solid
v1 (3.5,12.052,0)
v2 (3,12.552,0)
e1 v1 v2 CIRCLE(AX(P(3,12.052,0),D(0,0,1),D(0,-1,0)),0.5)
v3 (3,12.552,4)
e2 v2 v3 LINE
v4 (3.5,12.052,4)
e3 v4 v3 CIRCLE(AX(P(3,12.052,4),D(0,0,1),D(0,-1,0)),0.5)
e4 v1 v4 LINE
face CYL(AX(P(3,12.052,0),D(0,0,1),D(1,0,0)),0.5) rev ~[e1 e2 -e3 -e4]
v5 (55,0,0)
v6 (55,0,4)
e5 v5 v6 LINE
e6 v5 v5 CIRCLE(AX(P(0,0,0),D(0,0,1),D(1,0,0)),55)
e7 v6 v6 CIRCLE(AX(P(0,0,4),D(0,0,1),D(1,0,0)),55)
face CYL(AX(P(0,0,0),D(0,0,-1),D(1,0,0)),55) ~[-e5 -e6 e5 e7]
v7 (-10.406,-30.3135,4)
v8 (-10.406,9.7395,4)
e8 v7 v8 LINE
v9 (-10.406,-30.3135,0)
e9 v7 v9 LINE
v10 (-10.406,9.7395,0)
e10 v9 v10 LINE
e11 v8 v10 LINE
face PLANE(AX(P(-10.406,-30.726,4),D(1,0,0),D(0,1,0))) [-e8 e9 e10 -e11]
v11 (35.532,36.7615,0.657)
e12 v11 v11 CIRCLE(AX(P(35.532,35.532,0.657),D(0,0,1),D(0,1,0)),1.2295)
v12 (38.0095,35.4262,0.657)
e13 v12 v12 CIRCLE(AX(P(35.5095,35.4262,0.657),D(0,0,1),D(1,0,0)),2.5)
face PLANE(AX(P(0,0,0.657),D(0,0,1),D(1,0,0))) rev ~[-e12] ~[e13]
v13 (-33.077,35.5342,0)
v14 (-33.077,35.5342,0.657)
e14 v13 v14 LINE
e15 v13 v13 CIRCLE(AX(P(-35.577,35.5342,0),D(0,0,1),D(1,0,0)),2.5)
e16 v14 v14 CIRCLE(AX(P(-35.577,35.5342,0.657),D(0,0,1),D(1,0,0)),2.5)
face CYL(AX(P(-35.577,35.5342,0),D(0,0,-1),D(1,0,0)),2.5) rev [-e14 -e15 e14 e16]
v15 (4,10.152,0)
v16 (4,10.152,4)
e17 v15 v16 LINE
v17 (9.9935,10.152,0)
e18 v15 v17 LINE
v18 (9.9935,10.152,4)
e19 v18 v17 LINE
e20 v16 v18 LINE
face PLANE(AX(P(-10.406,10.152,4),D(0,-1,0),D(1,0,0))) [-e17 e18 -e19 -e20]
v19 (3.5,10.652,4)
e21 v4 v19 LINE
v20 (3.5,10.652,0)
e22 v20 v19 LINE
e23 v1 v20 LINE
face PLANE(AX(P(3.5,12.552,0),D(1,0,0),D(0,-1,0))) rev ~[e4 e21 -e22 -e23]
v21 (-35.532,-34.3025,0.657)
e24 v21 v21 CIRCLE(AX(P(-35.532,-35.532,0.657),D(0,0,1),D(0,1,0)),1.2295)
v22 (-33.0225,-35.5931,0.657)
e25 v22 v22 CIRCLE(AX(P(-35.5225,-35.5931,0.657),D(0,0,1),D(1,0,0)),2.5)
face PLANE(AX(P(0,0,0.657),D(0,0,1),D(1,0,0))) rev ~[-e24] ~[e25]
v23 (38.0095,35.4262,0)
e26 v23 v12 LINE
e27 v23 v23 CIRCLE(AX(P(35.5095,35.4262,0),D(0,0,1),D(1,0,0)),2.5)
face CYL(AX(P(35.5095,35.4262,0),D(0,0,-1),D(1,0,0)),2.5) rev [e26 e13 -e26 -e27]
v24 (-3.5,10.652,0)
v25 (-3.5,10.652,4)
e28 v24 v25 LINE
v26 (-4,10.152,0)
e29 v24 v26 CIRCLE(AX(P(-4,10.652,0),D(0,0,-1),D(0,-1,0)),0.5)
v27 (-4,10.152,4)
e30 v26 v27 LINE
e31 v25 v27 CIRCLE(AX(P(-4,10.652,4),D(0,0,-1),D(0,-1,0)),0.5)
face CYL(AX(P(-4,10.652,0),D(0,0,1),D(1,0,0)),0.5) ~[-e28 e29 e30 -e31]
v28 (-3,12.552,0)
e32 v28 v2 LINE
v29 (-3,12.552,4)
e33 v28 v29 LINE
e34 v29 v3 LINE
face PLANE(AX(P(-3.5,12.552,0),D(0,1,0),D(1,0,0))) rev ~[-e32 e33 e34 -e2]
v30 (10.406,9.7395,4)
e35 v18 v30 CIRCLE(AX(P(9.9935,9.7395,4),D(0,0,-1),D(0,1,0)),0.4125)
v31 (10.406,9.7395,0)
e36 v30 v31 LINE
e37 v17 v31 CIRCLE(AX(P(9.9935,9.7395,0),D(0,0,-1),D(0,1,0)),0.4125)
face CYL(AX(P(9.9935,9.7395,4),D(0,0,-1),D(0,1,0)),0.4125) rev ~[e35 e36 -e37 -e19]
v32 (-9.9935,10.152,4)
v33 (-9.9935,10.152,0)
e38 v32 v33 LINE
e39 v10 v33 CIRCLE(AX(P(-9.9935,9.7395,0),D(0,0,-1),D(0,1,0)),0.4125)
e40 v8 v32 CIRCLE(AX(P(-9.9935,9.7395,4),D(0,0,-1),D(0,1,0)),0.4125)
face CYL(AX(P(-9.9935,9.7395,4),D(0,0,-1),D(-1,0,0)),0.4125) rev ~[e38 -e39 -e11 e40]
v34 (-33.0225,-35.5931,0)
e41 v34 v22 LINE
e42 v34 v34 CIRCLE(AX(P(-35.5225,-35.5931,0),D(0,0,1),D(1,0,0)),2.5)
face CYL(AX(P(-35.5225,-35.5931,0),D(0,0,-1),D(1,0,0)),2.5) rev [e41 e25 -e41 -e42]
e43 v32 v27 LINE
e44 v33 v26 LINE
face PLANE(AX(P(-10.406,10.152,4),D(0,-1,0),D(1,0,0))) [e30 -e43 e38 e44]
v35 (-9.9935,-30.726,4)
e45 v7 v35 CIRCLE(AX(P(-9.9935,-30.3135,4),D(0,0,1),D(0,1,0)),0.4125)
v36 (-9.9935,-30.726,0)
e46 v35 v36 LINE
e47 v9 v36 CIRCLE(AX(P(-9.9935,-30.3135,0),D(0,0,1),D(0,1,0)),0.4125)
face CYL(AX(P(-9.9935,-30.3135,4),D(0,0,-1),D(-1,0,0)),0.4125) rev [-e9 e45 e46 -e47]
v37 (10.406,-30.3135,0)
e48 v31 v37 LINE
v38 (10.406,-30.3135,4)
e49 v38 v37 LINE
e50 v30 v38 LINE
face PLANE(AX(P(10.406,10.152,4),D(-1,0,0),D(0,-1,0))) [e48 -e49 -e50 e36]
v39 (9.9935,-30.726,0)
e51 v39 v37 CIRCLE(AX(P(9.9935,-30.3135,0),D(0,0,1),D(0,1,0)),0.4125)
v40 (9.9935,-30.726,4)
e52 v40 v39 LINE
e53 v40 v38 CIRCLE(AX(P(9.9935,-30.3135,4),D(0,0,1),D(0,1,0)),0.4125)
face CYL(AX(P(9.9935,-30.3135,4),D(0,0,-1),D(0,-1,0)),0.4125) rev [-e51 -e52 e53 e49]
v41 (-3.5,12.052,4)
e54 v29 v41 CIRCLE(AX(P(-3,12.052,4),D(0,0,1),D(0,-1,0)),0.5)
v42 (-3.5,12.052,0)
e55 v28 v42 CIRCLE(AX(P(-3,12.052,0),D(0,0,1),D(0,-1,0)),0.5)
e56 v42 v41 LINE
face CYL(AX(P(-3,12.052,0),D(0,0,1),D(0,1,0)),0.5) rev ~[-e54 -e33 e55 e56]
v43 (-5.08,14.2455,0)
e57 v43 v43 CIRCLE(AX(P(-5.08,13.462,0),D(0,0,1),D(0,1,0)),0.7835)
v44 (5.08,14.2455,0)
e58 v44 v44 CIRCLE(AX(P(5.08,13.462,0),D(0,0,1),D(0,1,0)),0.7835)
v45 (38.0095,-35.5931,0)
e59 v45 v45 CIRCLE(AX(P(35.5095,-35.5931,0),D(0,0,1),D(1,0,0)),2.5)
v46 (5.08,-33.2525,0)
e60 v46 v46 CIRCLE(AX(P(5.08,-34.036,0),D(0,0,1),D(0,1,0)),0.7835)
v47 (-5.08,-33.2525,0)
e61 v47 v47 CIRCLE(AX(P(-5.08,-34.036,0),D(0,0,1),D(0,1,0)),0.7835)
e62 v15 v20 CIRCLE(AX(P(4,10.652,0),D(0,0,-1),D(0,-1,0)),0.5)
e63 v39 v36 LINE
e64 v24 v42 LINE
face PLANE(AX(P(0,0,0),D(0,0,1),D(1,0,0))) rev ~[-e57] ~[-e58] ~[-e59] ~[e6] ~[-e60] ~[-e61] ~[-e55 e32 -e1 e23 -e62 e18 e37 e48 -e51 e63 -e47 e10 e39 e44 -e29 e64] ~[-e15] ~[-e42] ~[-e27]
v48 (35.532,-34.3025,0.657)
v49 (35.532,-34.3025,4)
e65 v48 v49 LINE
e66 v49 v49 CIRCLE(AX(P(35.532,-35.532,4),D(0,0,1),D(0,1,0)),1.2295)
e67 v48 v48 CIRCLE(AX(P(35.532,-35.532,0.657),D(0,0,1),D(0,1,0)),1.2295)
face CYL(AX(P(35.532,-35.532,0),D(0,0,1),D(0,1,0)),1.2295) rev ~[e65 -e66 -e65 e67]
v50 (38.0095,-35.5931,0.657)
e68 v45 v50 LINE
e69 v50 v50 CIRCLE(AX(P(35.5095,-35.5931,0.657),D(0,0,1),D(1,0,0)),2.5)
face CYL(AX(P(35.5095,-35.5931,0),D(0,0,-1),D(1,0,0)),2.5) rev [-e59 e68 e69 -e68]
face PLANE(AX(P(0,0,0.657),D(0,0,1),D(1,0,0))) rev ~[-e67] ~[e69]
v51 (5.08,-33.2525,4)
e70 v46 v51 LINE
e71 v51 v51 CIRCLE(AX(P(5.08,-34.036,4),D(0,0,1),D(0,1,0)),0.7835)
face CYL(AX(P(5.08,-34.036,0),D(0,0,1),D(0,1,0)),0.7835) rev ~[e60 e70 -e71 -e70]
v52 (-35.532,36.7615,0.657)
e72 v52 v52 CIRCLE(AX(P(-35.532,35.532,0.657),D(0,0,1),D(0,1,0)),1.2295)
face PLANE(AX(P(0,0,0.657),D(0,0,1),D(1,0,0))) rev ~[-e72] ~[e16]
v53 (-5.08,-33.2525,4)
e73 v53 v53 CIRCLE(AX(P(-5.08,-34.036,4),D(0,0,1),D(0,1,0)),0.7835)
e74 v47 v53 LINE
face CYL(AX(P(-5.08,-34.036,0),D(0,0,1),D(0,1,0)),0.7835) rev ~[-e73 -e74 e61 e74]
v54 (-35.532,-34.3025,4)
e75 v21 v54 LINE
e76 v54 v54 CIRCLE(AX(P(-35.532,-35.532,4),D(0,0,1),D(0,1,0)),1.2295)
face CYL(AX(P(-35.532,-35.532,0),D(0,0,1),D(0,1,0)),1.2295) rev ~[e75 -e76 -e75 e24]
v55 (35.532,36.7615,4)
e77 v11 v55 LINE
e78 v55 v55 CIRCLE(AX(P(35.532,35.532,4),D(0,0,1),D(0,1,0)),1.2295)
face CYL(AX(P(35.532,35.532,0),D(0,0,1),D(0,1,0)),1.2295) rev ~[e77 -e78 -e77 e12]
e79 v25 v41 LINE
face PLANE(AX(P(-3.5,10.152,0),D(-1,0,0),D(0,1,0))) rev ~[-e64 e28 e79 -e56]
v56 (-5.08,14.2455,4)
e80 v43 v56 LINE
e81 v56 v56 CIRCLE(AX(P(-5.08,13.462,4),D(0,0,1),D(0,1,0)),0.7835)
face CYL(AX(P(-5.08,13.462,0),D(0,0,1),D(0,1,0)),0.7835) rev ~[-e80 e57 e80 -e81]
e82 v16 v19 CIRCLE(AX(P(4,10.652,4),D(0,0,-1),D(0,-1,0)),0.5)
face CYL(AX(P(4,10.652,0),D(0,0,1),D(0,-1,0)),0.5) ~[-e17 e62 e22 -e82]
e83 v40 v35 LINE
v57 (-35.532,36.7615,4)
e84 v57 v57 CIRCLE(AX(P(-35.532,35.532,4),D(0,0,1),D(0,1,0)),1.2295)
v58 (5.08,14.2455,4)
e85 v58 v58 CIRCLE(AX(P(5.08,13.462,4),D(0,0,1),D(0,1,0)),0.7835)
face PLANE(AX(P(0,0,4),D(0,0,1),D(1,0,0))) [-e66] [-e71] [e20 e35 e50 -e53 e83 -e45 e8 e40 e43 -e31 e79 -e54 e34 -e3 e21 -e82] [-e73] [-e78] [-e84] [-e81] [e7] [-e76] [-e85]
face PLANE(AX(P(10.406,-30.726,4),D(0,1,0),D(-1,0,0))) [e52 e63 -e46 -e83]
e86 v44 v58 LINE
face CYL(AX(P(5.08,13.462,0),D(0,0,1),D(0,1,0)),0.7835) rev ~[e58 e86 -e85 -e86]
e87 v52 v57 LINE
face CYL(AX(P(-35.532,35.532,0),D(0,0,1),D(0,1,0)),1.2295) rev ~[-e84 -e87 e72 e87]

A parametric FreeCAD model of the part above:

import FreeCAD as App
import Part
import Sketcher


def edges_at(feature, points):
    """Names of the edges that pass closest to the given points."""
    edges = feature.Shape.Edges
    near = lambda p: min(range(len(edges)), key=lambda i: edges[i].distToShape(Part.Vertex(*p))[0])
    return sorted({f"Edge{near(p) + 1}" for p in points})

doc = App.newDocument("Part")
body = doc.addObject("PartDesign::Body", "Body")

# Sketch on XY plane
sketch1 = body.newObject("Sketcher::SketchObject", "Sketch")
sketch1.AttachmentSupport = (doc.getObject("XY_Plane"), [""])
sketch1.MapMode = "FlatFace"
sketch1.addGeometry(Part.Circle(App.Vector(0, 0, 0), App.Vector(0, 0, 1), 55), False)
sketch1.addConstraint([
    Sketcher.Constraint("Coincident", 0, 3, -1, 1),
    Sketcher.Constraint("Diameter", 0, 110.0),
])
pad1 = body.newObject("PartDesign::Pad", "Pad")
pad1.Profile = sketch1
pad1.Length = 4

# Sketch on XY plane
sketch2 = body.newObject("Sketcher::SketchObject", "Sketch001")
sketch2.AttachmentSupport = (doc.getObject("XY_Plane"), [""])
sketch2.MapMode = "FlatFace"
sketch2.AttachmentOffset = App.Placement(App.Vector(0, 0, 4), App.Rotation())
sketch2.addGeometry([
    Part.LineSegment(App.Vector(10.406, 10.152, 0), App.Vector(-10.406, 10.152, 0)),
    Part.LineSegment(App.Vector(-10.406, 10.152, 0), App.Vector(-10.406, -30.726, 0)),
    Part.LineSegment(App.Vector(-10.406, -30.726, 0), App.Vector(10.406, -30.726, 0)),
    Part.LineSegment(App.Vector(10.406, -30.726, 0), App.Vector(10.406, 10.152, 0)),
], False)
sketch2.addConstraint([
    Sketcher.Constraint("Coincident", 0, 2, 1, 1),
    Sketcher.Constraint("Coincident", 1, 2, 2, 1),
    Sketcher.Constraint("Coincident", 2, 2, 3, 1),
    Sketcher.Constraint("Coincident", 3, 2, 0, 1),
    Sketcher.Constraint("Horizontal", 0),
    Sketcher.Constraint("Vertical", 1),
    Sketcher.Constraint("Horizontal", 2),
    Sketcher.Constraint("Vertical", 3),
    Sketcher.Constraint("DistanceX", 0, 2, 0, 1, 20.812),
    Sketcher.Constraint("DistanceY", 1, 2, 1, 1, 40.878),
    Sketcher.Constraint("DistanceY", -1, 1, 0, 2, 10.152),
    Sketcher.Constraint("DistanceX", 0, 2, -1, 1, 10.406),
])
pocket1 = body.newObject("PartDesign::Pocket", "Pocket")
pocket1.Profile = sketch2
pocket1.Length = 4

# Sketch on XY plane
sketch3 = body.newObject("Sketcher::SketchObject", "Sketch002")
sketch3.AttachmentSupport = (doc.getObject("XY_Plane"), [""])
sketch3.MapMode = "FlatFace"
sketch3.addGeometry([
    Part.Circle(App.Vector(-35.577, 35.5342, 0), App.Vector(0, 0, 1), 2.5),
    Part.Circle(App.Vector(-35.5225, -35.5931, 0), App.Vector(0, 0, 1), 2.5),
    Part.Circle(App.Vector(35.5095, -35.5931, 0), App.Vector(0, 0, 1), 2.5),
    Part.Circle(App.Vector(35.5095, 35.4262, 0), App.Vector(0, 0, 1), 2.5),
], False)
sketch3.addConstraint([
    Sketcher.Constraint("Equal", 0, 1),
    Sketcher.Constraint("Equal", 1, 2),
    Sketcher.Constraint("Equal", 2, 3),
    Sketcher.Constraint("Horizontal", 1, 3, 2, 3),
    Sketcher.Constraint("Vertical", 2, 3, 3, 3),
    Sketcher.Constraint("Diameter", 0, 5.0),
    Sketcher.Constraint("DistanceX", 0, 3, -1, 1, 35.577),
    Sketcher.Constraint("DistanceY", 1, 3, -1, 1, 35.593),
    Sketcher.Constraint("DistanceX", 1, 3, 2, 3, 71.032),
    Sketcher.Constraint("DistanceY", 3, 3, 0, 3, 0.108),
    Sketcher.Constraint("DistanceY", -1, 1, 0, 3, 35.5342),
    Sketcher.Constraint("DistanceX", 1, 3, -1, 1, 35.5225),
])
pocket2 = body.newObject("PartDesign::Pocket", "Pocket001")
pocket2.Profile = sketch3
pocket2.Length = 0.657
pocket2.Reversed = True

# Sketch on XY plane
sketch4 = body.newObject("Sketcher::SketchObject", "Sketch003")
sketch4.AttachmentSupport = (doc.getObject("XY_Plane"), [""])
sketch4.MapMode = "FlatFace"
sketch4.addGeometry([
    Part.Circle(App.Vector(35.532, 35.532, 0), App.Vector(0, 0, 1), 1.2295),
    Part.Circle(App.Vector(-35.532, 35.532, 0), App.Vector(0, 0, 1), 1.2295),
    Part.Circle(App.Vector(35.532, -35.532, 0), App.Vector(0, 0, 1), 1.2295),
    Part.Circle(App.Vector(-35.532, -35.532, 0), App.Vector(0, 0, 1), 1.2295),
], False)
sketch4.addConstraint([
    Sketcher.Constraint("Equal", 0, 1),
    Sketcher.Constraint("Equal", 1, 2),
    Sketcher.Constraint("Equal", 2, 3),
    Sketcher.Constraint("Symmetric", 1, 3, 2, 3, -1, 1),
    Sketcher.Constraint("Symmetric", 0, 3, 3, 3, -1, 1),
    Sketcher.Constraint("Symmetric", 0, 3, 1, 3, -2),
    Sketcher.Constraint("Diameter", 0, 2.459),
    Sketcher.Constraint("DistanceX", -1, 1, 0, 3, 35.532),
    Sketcher.Constraint("DistanceY", -1, 1, 0, 3, 35.532),
])
doc.recompute()
hole = body.newObject("PartDesign::Hole", "Hole")
hole.Profile = sketch4
hole.ThreadType = "None"
hole.Diameter = 2.459
hole.DepthType = "Dimension"
hole.Depth = 4
hole.DrillPoint = "Angled"
hole.DrillPointAngle = 118
hole.Reversed = True

# Sketch on XY plane
sketch5 = body.newObject("Sketcher::SketchObject", "Sketch004")
sketch5.AttachmentSupport = (doc.getObject("XY_Plane"), [""])
sketch5.MapMode = "FlatFace"
sketch5.addGeometry([
    Part.Circle(App.Vector(-5.08, 13.462, 0), App.Vector(0, 0, 1), 0.7835),
    Part.Circle(App.Vector(5.08, 13.462, 0), App.Vector(0, 0, 1), 0.7835),
    Part.Circle(App.Vector(-5.08, -34.036, 0), App.Vector(0, 0, 1), 0.7835),
    Part.Circle(App.Vector(5.08, -34.036, 0), App.Vector(0, 0, 1), 0.7835),
], False)
sketch5.addConstraint([
    Sketcher.Constraint("Equal", 0, 1),
    Sketcher.Constraint("Equal", 1, 2),
    Sketcher.Constraint("Equal", 2, 3),
    Sketcher.Constraint("Symmetric", 0, 3, 1, 3, -2),
    Sketcher.Constraint("Symmetric", 2, 3, 3, 3, -2),
    Sketcher.Constraint("Vertical", 0, 3, 2, 3),
    Sketcher.Constraint("Diameter", 0, 1.567),
    Sketcher.Constraint("DistanceX", 0, 3, -1, 1, 5.08),
    Sketcher.Constraint("DistanceY", -1, 1, 0, 3, 13.462),
    Sketcher.Constraint("DistanceY", 2, 3, -1, 1, 34.036),
])
doc.recompute()
hole2 = body.newObject("PartDesign::Hole", "Hole001")
hole2.Profile = sketch5
hole2.ThreadType = "None"
hole2.Diameter = 1.567
hole2.DepthType = "Dimension"
hole2.Depth = 4
hole2.DrillPoint = "Angled"
hole2.DrillPointAngle = 118
hole2.Reversed = True
doc.recompute()

fillet = body.newObject("PartDesign::Fillet", "Fillet")
fillet.Base = (hole2, edges_at(hole2, [
    (10.406, -30.726, 2),
    (-10.406, -30.726, 2),
    (10.406, 10.152, 2),
    (-10.406, 10.152, 2),
]))
fillet.Radius = 0.4125

# Sketch on XY plane
sketch6 = body.newObject("Sketcher::SketchObject", "Sketch005")
sketch6.AttachmentSupport = (doc.getObject("XY_Plane"), [""])
sketch6.MapMode = "FlatFace"
sketch6.addGeometry([
    Part.LineSegment(App.Vector(-3.5, 10.152, 0), App.Vector(-3.5, 12.552, 0)),
    Part.LineSegment(App.Vector(-3.5, 12.552, 0), App.Vector(3.5, 12.552, 0)),
    Part.LineSegment(App.Vector(3.5, 12.552, 0), App.Vector(3.5, 10.152, 0)),
    Part.LineSegment(App.Vector(3.5, 10.152, 0), App.Vector(-3.5, 10.152, 0)),
], False)
sketch6.addConstraint([
    Sketcher.Constraint("Coincident", 0, 2, 1, 1),
    Sketcher.Constraint("Coincident", 1, 2, 2, 1),
    Sketcher.Constraint("Coincident", 2, 2, 3, 1),
    Sketcher.Constraint("Coincident", 3, 2, 0, 1),
    Sketcher.Constraint("Vertical", 0),
    Sketcher.Constraint("Horizontal", 1),
    Sketcher.Constraint("Vertical", 2),
    Sketcher.Constraint("Horizontal", 3),
    Sketcher.Constraint("DistanceX", 1, 1, 1, 2, 7.0),
    Sketcher.Constraint("DistanceX", 0, 2, -1, 1, 3.5),
    Sketcher.Constraint("DistanceY", 0, 1, 0, 2, 2.4),
    Sketcher.Constraint("DistanceY", -1, 1, 0, 2, 12.552),
])
pocket3 = body.newObject("PartDesign::Pocket", "Pocket002")
pocket3.Profile = sketch6
pocket3.Length = 4
pocket3.Reversed = True
doc.recompute()

fillet2 = body.newObject("PartDesign::Fillet", "Fillet001")
fillet2.Base = (pocket3, edges_at(pocket3, [
    (-3.5, 12.552, 2),
    (-3.5, 10.152, 2),
    (3.5, 12.552, 2),
    (3.5, 10.152, 2),
]))
fillet2.Radius = 0.5

doc.recompute()
